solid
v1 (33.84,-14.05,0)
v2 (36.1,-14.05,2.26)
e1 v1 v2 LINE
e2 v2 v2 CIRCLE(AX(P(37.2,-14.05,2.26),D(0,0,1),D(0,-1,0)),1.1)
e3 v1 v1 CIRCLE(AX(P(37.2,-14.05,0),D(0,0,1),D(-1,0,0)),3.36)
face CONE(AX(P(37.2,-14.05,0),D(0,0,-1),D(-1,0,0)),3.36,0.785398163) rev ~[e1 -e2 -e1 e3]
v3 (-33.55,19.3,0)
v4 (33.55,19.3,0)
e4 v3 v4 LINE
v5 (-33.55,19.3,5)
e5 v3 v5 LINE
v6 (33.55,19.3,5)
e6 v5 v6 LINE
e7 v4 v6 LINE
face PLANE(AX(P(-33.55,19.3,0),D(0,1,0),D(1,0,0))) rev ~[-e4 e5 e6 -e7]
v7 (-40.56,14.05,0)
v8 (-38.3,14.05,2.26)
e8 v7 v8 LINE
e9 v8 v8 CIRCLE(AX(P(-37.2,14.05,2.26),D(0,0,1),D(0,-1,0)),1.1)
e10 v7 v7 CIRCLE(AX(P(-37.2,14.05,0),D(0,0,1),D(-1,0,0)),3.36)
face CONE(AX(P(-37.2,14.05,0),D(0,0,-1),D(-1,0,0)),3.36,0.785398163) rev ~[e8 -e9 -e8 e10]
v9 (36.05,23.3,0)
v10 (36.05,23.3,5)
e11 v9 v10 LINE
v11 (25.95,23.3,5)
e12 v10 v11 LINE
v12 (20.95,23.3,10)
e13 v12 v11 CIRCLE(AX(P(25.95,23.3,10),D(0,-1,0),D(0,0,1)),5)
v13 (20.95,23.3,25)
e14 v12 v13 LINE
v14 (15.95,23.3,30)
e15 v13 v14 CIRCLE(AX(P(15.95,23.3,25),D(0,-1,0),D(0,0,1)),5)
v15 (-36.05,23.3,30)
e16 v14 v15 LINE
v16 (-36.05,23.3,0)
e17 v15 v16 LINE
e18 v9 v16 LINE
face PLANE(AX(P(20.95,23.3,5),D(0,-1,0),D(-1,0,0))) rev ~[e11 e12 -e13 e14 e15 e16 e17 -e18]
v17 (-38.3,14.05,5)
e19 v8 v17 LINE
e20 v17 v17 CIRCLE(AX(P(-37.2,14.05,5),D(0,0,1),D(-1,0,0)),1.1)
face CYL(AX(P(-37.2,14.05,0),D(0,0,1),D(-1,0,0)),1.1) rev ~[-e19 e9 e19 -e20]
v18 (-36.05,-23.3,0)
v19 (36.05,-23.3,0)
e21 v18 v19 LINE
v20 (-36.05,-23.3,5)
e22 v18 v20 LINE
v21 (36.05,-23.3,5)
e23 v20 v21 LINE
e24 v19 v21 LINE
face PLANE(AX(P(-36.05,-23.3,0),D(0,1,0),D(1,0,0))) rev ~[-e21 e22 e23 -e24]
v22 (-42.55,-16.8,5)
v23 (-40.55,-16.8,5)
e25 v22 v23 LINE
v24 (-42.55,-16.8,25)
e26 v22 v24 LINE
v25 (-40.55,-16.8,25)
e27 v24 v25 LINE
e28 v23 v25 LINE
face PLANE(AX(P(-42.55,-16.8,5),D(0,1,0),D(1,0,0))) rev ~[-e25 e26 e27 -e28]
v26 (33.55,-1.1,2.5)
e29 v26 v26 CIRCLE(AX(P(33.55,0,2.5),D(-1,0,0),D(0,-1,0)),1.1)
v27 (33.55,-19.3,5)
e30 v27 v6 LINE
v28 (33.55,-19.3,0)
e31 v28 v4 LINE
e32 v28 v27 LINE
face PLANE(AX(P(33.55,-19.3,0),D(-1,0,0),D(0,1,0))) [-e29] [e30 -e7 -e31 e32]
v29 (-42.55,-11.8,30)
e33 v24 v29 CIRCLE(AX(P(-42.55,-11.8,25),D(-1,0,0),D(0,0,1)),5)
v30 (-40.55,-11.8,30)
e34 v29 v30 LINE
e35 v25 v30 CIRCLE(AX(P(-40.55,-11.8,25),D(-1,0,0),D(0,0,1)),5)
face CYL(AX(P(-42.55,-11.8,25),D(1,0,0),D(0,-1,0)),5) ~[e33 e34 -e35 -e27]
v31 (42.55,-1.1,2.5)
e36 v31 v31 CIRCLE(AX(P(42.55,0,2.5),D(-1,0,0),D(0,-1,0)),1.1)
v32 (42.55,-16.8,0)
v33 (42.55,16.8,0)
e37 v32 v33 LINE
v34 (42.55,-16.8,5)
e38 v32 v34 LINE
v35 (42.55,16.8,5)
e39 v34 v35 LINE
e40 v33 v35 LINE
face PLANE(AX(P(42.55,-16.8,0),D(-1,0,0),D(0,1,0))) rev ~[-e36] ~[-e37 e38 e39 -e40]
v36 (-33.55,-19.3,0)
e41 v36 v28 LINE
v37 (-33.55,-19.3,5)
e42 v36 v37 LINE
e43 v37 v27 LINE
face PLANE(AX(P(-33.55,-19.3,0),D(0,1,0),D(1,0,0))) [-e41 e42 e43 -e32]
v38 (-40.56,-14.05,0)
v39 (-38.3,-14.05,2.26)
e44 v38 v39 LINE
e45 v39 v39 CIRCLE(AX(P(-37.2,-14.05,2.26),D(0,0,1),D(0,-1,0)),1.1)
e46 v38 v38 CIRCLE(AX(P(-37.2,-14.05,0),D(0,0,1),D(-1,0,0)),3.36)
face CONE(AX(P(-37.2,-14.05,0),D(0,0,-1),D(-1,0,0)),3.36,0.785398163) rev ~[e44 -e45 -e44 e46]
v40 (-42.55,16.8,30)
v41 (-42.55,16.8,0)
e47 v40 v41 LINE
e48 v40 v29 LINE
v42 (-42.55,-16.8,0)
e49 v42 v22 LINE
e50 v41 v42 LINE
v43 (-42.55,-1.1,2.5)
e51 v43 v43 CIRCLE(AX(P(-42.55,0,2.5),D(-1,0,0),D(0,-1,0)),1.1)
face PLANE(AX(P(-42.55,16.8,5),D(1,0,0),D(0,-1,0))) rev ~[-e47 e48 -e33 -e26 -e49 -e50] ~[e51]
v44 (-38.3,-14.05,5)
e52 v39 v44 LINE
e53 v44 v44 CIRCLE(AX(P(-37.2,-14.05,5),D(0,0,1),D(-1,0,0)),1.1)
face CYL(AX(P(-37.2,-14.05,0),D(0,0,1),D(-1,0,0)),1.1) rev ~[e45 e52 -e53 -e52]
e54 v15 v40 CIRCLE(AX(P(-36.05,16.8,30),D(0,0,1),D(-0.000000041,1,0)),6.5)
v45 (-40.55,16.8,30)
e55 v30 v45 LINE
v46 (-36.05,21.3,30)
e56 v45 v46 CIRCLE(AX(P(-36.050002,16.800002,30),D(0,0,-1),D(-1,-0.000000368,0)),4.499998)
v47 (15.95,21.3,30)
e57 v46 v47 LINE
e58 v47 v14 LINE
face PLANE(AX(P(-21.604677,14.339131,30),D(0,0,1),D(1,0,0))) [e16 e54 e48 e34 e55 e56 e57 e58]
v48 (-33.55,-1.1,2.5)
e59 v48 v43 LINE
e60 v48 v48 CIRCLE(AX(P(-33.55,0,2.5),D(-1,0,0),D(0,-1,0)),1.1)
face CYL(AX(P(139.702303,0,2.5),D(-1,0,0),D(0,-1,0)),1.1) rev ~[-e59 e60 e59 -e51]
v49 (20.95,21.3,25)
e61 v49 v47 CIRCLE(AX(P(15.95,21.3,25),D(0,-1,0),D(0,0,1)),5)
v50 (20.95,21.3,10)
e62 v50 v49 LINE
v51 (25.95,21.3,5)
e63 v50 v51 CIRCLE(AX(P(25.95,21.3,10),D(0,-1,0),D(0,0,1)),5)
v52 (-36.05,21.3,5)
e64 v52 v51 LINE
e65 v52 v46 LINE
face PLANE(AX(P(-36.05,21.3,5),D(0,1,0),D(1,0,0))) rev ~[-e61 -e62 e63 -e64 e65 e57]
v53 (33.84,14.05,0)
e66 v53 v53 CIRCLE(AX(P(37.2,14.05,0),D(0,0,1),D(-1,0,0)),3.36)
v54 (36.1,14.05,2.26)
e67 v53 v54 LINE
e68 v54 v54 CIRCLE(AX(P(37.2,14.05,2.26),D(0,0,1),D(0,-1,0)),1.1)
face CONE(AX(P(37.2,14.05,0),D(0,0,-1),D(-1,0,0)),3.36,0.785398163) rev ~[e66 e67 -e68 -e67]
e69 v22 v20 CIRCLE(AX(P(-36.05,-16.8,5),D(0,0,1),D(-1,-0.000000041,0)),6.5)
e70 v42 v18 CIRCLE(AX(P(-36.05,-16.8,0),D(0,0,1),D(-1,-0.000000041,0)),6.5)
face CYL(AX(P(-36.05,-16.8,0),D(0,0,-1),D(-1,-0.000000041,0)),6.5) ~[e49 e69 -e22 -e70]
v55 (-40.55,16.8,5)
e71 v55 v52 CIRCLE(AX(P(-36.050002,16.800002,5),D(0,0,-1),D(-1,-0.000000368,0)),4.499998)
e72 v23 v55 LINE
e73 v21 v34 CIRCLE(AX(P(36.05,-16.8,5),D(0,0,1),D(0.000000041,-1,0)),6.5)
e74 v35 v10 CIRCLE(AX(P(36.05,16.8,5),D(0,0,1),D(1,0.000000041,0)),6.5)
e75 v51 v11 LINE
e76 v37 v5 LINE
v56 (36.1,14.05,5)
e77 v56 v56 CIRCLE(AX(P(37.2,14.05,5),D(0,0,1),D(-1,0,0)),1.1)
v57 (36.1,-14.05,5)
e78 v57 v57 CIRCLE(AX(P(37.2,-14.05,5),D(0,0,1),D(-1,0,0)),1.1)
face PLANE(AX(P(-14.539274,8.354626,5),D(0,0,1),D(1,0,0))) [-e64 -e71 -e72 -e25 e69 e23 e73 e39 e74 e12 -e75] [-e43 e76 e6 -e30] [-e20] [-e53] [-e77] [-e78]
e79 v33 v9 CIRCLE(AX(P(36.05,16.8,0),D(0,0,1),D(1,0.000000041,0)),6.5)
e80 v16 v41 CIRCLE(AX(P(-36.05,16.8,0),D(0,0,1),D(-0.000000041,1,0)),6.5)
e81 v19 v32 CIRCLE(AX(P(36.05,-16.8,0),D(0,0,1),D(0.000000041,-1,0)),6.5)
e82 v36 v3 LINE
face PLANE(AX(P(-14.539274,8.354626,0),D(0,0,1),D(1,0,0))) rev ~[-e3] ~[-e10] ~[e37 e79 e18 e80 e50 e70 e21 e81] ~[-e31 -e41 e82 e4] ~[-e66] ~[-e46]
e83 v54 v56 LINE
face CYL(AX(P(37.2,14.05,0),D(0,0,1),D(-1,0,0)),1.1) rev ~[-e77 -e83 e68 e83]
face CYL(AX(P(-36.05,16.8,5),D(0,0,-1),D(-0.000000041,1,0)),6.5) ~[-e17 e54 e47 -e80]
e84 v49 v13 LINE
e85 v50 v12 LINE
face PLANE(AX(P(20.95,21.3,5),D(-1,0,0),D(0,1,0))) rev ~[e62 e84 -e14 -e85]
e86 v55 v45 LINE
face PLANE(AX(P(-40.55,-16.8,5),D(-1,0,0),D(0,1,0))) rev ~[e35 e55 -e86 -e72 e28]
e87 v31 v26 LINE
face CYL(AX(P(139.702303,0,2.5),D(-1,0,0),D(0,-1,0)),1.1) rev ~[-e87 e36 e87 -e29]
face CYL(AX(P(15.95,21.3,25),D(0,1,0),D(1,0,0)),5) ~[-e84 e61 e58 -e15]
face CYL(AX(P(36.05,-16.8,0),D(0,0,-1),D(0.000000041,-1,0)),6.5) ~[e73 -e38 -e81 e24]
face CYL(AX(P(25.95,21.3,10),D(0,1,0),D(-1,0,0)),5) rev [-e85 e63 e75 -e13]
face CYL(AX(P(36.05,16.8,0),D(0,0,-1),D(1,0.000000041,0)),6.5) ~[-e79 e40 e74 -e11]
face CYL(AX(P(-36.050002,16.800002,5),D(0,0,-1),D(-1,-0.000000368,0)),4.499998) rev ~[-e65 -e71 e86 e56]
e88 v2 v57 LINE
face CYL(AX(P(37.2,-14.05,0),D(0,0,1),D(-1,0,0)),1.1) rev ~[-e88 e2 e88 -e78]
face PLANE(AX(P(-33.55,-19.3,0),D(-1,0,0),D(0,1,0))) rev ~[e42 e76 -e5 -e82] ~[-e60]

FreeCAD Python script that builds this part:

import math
import FreeCAD as App
import Part
import Sketcher

V = App.Vector


def edges_at(feature, points):
    """Names of the edges that pass closest to the given points."""
    edges = feature.Shape.Edges
    near = lambda p: min(range(len(edges)), key=lambda i: edges[i].distToShape(Part.Vertex(*p))[0])
    return sorted({f"Edge{near(p) + 1}" for p in points})


def add_polygon(sketch, points):
    """Adds a closed chain of lines whose ends are joined by coincident constraints."""
    first, n = sketch.GeometryCount, len(points)
    for a, b in zip(points, points[1:] + points[:1]):
        sketch.addGeometry(Part.LineSegment(App.Vector(*a, 0), App.Vector(*b, 0)), False)
    for i in range(n):
        sketch.addConstraint(Sketcher.Constraint("Coincident", first + i, 2, first + (i + 1) % n, 1))

doc = App.newDocument("Part")
body = doc.addObject("PartDesign::Body", "Body")

# Sketch on XY plane
sketch1 = body.newObject("Sketcher::SketchObject", "Sketch")
sketch1.AttachmentSupport = (doc.getObject("XY_Plane"), [""])
sketch1.MapMode = "FlatFace"
sketch1.addGeometry(Part.ArcOfCircle(Part.Circle(V(36.1, 16.8, 0), V(0, 0, 1), 4.5), math.radians(0), math.radians(90)), False)  # 0
sketch1.addGeometry(Part.LineSegment(V(36, 21.3, 0), V(-36, 21.3, 0)), False)  # 1
sketch1.addGeometry(Part.ArcOfCircle(Part.Circle(V(-36.1, 16.8, 0), V(0, 0, 1), 4.5), math.radians(90), math.radians(180)), False)  # 2
sketch1.addGeometry(Part.LineSegment(V(-40.5, 16.8, 0), V(-40.5, -16.8, 0)), False)  # 3
sketch1.addGeometry(Part.ArcOfCircle(Part.Circle(V(-36.1, -16.8, 0), V(0, 0, 1), 4.5), math.radians(180), math.radians(270)), False)  # 4
sketch1.addGeometry(Part.LineSegment(V(-36, -21.3, 0), V(36, -21.3, 0)), False)  # 5
sketch1.addGeometry(Part.ArcOfCircle(Part.Circle(V(36.1, -16.8, 0), V(0, 0, 1), 4.5), math.radians(-90), math.radians(0)), False)  # 6
sketch1.addGeometry(Part.LineSegment(V(40.5, -16.8, 0), V(40.5, 16.8, 0)), False)  # 7
add_polygon(sketch1, [(33.5, -19.3), (-33.5, -19.3), (-33.5, 19.3), (33.5, 19.3)])  # lines 8-11
sketch1.addConstraint([
    Sketcher.Constraint("Tangent", 0, 2, 1, 1),
    Sketcher.Constraint("Tangent", 1, 2, 2, 1),
    Sketcher.Constraint("Tangent", 2, 2, 3, 1),
    Sketcher.Constraint("Tangent", 3, 2, 4, 1),
    Sketcher.Constraint("Tangent", 4, 2, 5, 1),
    Sketcher.Constraint("Tangent", 5, 2, 6, 1),
    Sketcher.Constraint("Tangent", 6, 2, 7, 1),
    Sketcher.Constraint("Tangent", 7, 2, 0, 1),
    Sketcher.Constraint("Horizontal", 1),
    Sketcher.Constraint("Vertical", 3),
    Sketcher.Constraint("Horizontal", 5),
    Sketcher.Constraint("Vertical", 7),
    Sketcher.Constraint("Horizontal", 8),
    Sketcher.Constraint("Vertical", 9),
    Sketcher.Constraint("Horizontal", 10),
    Sketcher.Constraint("Vertical", 11),
    Sketcher.Constraint("Equal", 0, 2),
    Sketcher.Constraint("Equal", 2, 4),
    Sketcher.Constraint("Equal", 4, 6),
    Sketcher.Constraint("Symmetric", 0, 3, 4, 3, -1, 1),
    Sketcher.Constraint("Symmetric", 8, 2, 10, 2, -1, 1),
    Sketcher.Constraint("Radius", 0, 4.499998),
    Sketcher.Constraint("DistanceX", 1, 2, 1, 1, 72.1),
    Sketcher.Constraint("DistanceX", 8, 2, 8, 1, 67.1),
    Sketcher.Constraint("DistanceY", 3, 2, 3, 1, 33.6),
    Sketcher.Constraint("DistanceY", 9, 1, 9, 2, 38.6),
])
pad1 = body.newObject("PartDesign::Pad", "Pad")
pad1.Profile = sketch1
pad1.Length = 5

# Sketch on XY plane
sketch2 = body.newObject("Sketcher::SketchObject", "Sketch001")
sketch2.AttachmentSupport = (doc.getObject("XY_Plane"), [""])
sketch2.MapMode = "FlatFace"
sketch2.addGeometry([
    Part.ArcOfCircle(Part.Circle(V(36, 16.8, 0), V(0, 0, 1), 6.5), math.radians(0), math.radians(90)),  # 0
    Part.LineSegment(V(36, 23.3, 0), V(-36, 23.3, 0)),  # 1
    Part.ArcOfCircle(Part.Circle(V(-36, 16.8, 0), V(0, 0, 1), 6.5), math.radians(90), math.radians(180)),  # 2
    Part.LineSegment(V(-42.5, 16.8, 0), V(-42.5, -16.8, 0)),  # 3
    Part.ArcOfCircle(Part.Circle(V(-36, -16.8, 0), V(0, 0, 1), 6.5), math.radians(-180), math.radians(-90)),  # 4
    Part.LineSegment(V(-36, -23.3, 0), V(36, -23.3, 0)),  # 5
    Part.ArcOfCircle(Part.Circle(V(36, -16.8, 0), V(0, 0, 1), 6.5), math.radians(-90), math.radians(0)),  # 6
    Part.LineSegment(V(42.5, -16.8, 0), V(42.5, 16.8, 0)),  # 7
    Part.LineSegment(V(-36, 21.3, 0), V(36, 21.3, 0)),  # 8
    Part.ArcOfCircle(Part.Circle(V(36.1, 16.8, 0), V(0, 0, 1), 4.5), math.radians(0), math.radians(90)),  # 9
    Part.LineSegment(V(40.5, 16.8, 0), V(40.5, -16.8, 0)),  # 10
    Part.ArcOfCircle(Part.Circle(V(36.1, -16.8, 0), V(0, 0, 1), 4.5), math.radians(-90), math.radians(0)),  # 11
    Part.LineSegment(V(36, -21.3, 0), V(-36, -21.3, 0)),  # 12
    Part.ArcOfCircle(Part.Circle(V(-36.1, -16.8, 0), V(0, 0, 1), 4.5), math.radians(180), math.radians(270)),  # 13
    Part.LineSegment(V(-40.5, -16.8, 0), V(-40.5, 16.8, 0)),  # 14
    Part.ArcOfCircle(Part.Circle(V(-36.1, 16.8, 0), V(0, 0, 1), 4.5), math.radians(90), math.radians(180)),  # 15
], False)
sketch2.addConstraint([
    Sketcher.Constraint("Tangent", 0, 2, 1, 1),
    Sketcher.Constraint("Tangent", 1, 2, 2, 1),
    Sketcher.Constraint("Tangent", 2, 2, 3, 1),
    Sketcher.Constraint("Tangent", 3, 2, 4, 1),
    Sketcher.Constraint("Tangent", 4, 2, 5, 1),
    Sketcher.Constraint("Tangent", 5, 2, 6, 1),
    Sketcher.Constraint("Tangent", 6, 2, 7, 1),
    Sketcher.Constraint("Tangent", 7, 2, 0, 1),
    Sketcher.Constraint("Tangent", 8, 2, 9, 2),
    Sketcher.Constraint("Tangent", 9, 1, 10, 1),
    Sketcher.Constraint("Tangent", 10, 2, 11, 2),
    Sketcher.Constraint("Tangent", 11, 1, 12, 1),
    Sketcher.Constraint("Tangent", 12, 2, 13, 2),
    Sketcher.Constraint("Tangent", 13, 1, 14, 1),
    Sketcher.Constraint("Tangent", 14, 2, 15, 2),
    Sketcher.Constraint("Tangent", 15, 1, 8, 1),
    Sketcher.Constraint("Horizontal", 1),
    Sketcher.Constraint("Vertical", 3),
    Sketcher.Constraint("Horizontal", 5),
    Sketcher.Constraint("Vertical", 7),
    Sketcher.Constraint("Horizontal", 8),
    Sketcher.Constraint("Vertical", 10),
    Sketcher.Constraint("Horizontal", 12),
    Sketcher.Constraint("Vertical", 14),
    Sketcher.Constraint("Coincident", 9, 3, 0, 3),
    Sketcher.Constraint("Coincident", 11, 3, 6, 3),
    Sketcher.Constraint("Coincident", 13, 3, 4, 3),
    Sketcher.Constraint("Equal", 0, 2),
    Sketcher.Constraint("Equal", 2, 4),
    Sketcher.Constraint("Equal", 4, 6),
    Sketcher.Constraint("Equal", 13, 15),
    Sketcher.Constraint("Symmetric", 0, 3, 4, 3, -1, 1),
    Sketcher.Constraint("Radius", 0, 6.5),
    Sketcher.Constraint("Radius", 9, 4.499998),
    Sketcher.Constraint("DistanceX", 1, 2, 1, 1, 72.1),
    Sketcher.Constraint("DistanceY", 3, 2, 3, 1, 33.6),
])
pad2 = body.newObject("PartDesign::Pad", "Pad001")
pad2.Profile = sketch2
pad2.Length = 5

# Sketch on XY plane
sketch3 = body.newObject("Sketcher::SketchObject", "Sketch002")
sketch3.AttachmentSupport = (doc.getObject("XY_Plane"), [""])
sketch3.MapMode = "FlatFace"
sketch3.addGeometry([
    Part.Circle(V(37.2, -14.1, 0), V(0, 0, 1), 1.1),
    Part.Circle(V(37.2, 14.1, 0), V(0, 0, 1), 1.1),
    Part.Circle(V(-37.2, 14.1, 0), V(0, 0, 1), 1.1),
    Part.Circle(V(-37.2, -14.1, 0), V(0, 0, 1), 1.1),
], False)
sketch3.addConstraint([
    Sketcher.Constraint("Equal", 0, 1),
    Sketcher.Constraint("Equal", 1, 2),
    Sketcher.Constraint("Equal", 2, 3),
    Sketcher.Constraint("Symmetric", 0, 3, 2, 3, -1, 1),
    Sketcher.Constraint("Symmetric", 1, 3, 3, 3, -1, 1),
    Sketcher.Constraint("Symmetric", 1, 3, 2, 3, -2),
    Sketcher.Constraint("Diameter", 0, 2.2),
    Sketcher.Constraint("DistanceX", -1, 1, 0, 3, 37.2),
    Sketcher.Constraint("DistanceY", 0, 3, 1, 3, 28.1),
])
doc.recompute()
hole = body.newObject("PartDesign::Hole", "Hole")
hole.Profile = sketch3
hole.ThreadType = "None"
hole.Diameter = 2.2
hole.DepthType = "ThroughAll"
hole.HoleCutType = "Countersink"
hole.HoleCutDiameter = 6.72
hole.HoleCutCountersinkAngle = 90
hole.Reversed = True

# Sketch on YZ plane
sketch4 = body.newObject("Sketcher::SketchObject", "Sketch003")
sketch4.AttachmentSupport = (doc.getObject("YZ_Plane"), [""])
sketch4.MapMode = "FlatFace"
sketch4.AttachmentOffset = App.Placement(V(0, 0, 42.55), App.Rotation())
sketch4.addGeometry(Part.Circle(V(0, 2.5, 0), V(0, 0, 1), 1.1), False)
sketch4.addConstraint([
    Sketcher.Constraint("PointOnObject", 0, 3, -2),
    Sketcher.Constraint("Diameter", 0, 2.2),
    Sketcher.Constraint("DistanceY", -1, 1, 0, 3, 2.5),
])
doc.recompute()
hole2 = body.newObject("PartDesign::Hole", "Hole001")
hole2.Profile = sketch4
hole2.ThreadType = "None"
hole2.Diameter = 2.2
hole2.DepthType = "ThroughAll"

# Sketch on XY plane
sketch5 = body.newObject("Sketcher::SketchObject", "Sketch004")
sketch5.AttachmentSupport = (doc.getObject("XY_Plane"), [""])
sketch5.MapMode = "FlatFace"
sketch5.AttachmentOffset = App.Placement(V(0, 0, 5), App.Rotation())
sketch5.addGeometry([
    Part.LineSegment(V(-42.5, 16.8, 0), V(-42.5, -16.8, 0)),  # 0
    Part.LineSegment(V(-42.5, -16.8, 0), V(-40.5, -16.8, 0)),  # 1
    Part.LineSegment(V(-40.5, -16.8, 0), V(-40.5, 16.8, 0)),  # 2
    Part.ArcOfCircle(Part.Circle(V(-36.1, 16.8, 0), V(0, 0, 1), 4.5), math.radians(90), math.radians(180)),  # 3
    Part.LineSegment(V(-36, 21.3, 0), V(20.9, 21.3, 0)),  # 4
    Part.LineSegment(V(20.9, 21.3, 0), V(20.9, 23.3, 0)),  # 5
    Part.LineSegment(V(20.9, 23.3, 0), V(-36, 23.3, 0)),  # 6
    Part.ArcOfCircle(Part.Circle(V(-36, 16.8, 0), V(0, 0, 1), 6.5), math.radians(90), math.radians(180)),  # 7
], False)
sketch5.addConstraint([
    Sketcher.Constraint("Coincident", 0, 2, 1, 1),
    Sketcher.Constraint("Coincident", 1, 2, 2, 1),
    Sketcher.Constraint("Tangent", 2, 2, 3, 2),
    Sketcher.Constraint("Tangent", 3, 1, 4, 1),
    Sketcher.Constraint("Coincident", 4, 2, 5, 1),
    Sketcher.Constraint("Coincident", 5, 2, 6, 1),
    Sketcher.Constraint("Tangent", 6, 2, 7, 1),
    Sketcher.Constraint("Tangent", 7, 2, 0, 1),
    Sketcher.Constraint("Vertical", 0),
    Sketcher.Constraint("Horizontal", 1),
    Sketcher.Constraint("Vertical", 2),
    Sketcher.Constraint("Horizontal", 4),
    Sketcher.Constraint("Vertical", 5),
    Sketcher.Constraint("Horizontal", 6),
    Sketcher.Constraint("Coincident", 7, 3, 3, 3),
    Sketcher.Constraint("Radius", 3, 4.499998),
    Sketcher.Constraint("Radius", 7, 6.5),
    Sketcher.Constraint("DistanceX", 4, 1, 4, 2, 57.0),
    Sketcher.Constraint("DistanceY", 0, 2, 0, 1, 33.6),
    Sketcher.Constraint("DistanceY", -1, 1, 3, 3, 16.800002),
    Sketcher.Constraint("DistanceX", 3, 3, -1, 1, 36.050002),
])
pad3 = body.newObject("PartDesign::Pad", "Pad002")
pad3.Profile = sketch5
pad3.Length = 25
doc.recompute()

fillet = body.newObject("PartDesign::Fillet", "Fillet")
fillet.Base = (pad3, edges_at(pad3, [(-41.55, -16.8, 30), (20.95, 22.3, 30), (20.95, 22.3, 5)]))
fillet.Radius = 5

doc.recompute()
